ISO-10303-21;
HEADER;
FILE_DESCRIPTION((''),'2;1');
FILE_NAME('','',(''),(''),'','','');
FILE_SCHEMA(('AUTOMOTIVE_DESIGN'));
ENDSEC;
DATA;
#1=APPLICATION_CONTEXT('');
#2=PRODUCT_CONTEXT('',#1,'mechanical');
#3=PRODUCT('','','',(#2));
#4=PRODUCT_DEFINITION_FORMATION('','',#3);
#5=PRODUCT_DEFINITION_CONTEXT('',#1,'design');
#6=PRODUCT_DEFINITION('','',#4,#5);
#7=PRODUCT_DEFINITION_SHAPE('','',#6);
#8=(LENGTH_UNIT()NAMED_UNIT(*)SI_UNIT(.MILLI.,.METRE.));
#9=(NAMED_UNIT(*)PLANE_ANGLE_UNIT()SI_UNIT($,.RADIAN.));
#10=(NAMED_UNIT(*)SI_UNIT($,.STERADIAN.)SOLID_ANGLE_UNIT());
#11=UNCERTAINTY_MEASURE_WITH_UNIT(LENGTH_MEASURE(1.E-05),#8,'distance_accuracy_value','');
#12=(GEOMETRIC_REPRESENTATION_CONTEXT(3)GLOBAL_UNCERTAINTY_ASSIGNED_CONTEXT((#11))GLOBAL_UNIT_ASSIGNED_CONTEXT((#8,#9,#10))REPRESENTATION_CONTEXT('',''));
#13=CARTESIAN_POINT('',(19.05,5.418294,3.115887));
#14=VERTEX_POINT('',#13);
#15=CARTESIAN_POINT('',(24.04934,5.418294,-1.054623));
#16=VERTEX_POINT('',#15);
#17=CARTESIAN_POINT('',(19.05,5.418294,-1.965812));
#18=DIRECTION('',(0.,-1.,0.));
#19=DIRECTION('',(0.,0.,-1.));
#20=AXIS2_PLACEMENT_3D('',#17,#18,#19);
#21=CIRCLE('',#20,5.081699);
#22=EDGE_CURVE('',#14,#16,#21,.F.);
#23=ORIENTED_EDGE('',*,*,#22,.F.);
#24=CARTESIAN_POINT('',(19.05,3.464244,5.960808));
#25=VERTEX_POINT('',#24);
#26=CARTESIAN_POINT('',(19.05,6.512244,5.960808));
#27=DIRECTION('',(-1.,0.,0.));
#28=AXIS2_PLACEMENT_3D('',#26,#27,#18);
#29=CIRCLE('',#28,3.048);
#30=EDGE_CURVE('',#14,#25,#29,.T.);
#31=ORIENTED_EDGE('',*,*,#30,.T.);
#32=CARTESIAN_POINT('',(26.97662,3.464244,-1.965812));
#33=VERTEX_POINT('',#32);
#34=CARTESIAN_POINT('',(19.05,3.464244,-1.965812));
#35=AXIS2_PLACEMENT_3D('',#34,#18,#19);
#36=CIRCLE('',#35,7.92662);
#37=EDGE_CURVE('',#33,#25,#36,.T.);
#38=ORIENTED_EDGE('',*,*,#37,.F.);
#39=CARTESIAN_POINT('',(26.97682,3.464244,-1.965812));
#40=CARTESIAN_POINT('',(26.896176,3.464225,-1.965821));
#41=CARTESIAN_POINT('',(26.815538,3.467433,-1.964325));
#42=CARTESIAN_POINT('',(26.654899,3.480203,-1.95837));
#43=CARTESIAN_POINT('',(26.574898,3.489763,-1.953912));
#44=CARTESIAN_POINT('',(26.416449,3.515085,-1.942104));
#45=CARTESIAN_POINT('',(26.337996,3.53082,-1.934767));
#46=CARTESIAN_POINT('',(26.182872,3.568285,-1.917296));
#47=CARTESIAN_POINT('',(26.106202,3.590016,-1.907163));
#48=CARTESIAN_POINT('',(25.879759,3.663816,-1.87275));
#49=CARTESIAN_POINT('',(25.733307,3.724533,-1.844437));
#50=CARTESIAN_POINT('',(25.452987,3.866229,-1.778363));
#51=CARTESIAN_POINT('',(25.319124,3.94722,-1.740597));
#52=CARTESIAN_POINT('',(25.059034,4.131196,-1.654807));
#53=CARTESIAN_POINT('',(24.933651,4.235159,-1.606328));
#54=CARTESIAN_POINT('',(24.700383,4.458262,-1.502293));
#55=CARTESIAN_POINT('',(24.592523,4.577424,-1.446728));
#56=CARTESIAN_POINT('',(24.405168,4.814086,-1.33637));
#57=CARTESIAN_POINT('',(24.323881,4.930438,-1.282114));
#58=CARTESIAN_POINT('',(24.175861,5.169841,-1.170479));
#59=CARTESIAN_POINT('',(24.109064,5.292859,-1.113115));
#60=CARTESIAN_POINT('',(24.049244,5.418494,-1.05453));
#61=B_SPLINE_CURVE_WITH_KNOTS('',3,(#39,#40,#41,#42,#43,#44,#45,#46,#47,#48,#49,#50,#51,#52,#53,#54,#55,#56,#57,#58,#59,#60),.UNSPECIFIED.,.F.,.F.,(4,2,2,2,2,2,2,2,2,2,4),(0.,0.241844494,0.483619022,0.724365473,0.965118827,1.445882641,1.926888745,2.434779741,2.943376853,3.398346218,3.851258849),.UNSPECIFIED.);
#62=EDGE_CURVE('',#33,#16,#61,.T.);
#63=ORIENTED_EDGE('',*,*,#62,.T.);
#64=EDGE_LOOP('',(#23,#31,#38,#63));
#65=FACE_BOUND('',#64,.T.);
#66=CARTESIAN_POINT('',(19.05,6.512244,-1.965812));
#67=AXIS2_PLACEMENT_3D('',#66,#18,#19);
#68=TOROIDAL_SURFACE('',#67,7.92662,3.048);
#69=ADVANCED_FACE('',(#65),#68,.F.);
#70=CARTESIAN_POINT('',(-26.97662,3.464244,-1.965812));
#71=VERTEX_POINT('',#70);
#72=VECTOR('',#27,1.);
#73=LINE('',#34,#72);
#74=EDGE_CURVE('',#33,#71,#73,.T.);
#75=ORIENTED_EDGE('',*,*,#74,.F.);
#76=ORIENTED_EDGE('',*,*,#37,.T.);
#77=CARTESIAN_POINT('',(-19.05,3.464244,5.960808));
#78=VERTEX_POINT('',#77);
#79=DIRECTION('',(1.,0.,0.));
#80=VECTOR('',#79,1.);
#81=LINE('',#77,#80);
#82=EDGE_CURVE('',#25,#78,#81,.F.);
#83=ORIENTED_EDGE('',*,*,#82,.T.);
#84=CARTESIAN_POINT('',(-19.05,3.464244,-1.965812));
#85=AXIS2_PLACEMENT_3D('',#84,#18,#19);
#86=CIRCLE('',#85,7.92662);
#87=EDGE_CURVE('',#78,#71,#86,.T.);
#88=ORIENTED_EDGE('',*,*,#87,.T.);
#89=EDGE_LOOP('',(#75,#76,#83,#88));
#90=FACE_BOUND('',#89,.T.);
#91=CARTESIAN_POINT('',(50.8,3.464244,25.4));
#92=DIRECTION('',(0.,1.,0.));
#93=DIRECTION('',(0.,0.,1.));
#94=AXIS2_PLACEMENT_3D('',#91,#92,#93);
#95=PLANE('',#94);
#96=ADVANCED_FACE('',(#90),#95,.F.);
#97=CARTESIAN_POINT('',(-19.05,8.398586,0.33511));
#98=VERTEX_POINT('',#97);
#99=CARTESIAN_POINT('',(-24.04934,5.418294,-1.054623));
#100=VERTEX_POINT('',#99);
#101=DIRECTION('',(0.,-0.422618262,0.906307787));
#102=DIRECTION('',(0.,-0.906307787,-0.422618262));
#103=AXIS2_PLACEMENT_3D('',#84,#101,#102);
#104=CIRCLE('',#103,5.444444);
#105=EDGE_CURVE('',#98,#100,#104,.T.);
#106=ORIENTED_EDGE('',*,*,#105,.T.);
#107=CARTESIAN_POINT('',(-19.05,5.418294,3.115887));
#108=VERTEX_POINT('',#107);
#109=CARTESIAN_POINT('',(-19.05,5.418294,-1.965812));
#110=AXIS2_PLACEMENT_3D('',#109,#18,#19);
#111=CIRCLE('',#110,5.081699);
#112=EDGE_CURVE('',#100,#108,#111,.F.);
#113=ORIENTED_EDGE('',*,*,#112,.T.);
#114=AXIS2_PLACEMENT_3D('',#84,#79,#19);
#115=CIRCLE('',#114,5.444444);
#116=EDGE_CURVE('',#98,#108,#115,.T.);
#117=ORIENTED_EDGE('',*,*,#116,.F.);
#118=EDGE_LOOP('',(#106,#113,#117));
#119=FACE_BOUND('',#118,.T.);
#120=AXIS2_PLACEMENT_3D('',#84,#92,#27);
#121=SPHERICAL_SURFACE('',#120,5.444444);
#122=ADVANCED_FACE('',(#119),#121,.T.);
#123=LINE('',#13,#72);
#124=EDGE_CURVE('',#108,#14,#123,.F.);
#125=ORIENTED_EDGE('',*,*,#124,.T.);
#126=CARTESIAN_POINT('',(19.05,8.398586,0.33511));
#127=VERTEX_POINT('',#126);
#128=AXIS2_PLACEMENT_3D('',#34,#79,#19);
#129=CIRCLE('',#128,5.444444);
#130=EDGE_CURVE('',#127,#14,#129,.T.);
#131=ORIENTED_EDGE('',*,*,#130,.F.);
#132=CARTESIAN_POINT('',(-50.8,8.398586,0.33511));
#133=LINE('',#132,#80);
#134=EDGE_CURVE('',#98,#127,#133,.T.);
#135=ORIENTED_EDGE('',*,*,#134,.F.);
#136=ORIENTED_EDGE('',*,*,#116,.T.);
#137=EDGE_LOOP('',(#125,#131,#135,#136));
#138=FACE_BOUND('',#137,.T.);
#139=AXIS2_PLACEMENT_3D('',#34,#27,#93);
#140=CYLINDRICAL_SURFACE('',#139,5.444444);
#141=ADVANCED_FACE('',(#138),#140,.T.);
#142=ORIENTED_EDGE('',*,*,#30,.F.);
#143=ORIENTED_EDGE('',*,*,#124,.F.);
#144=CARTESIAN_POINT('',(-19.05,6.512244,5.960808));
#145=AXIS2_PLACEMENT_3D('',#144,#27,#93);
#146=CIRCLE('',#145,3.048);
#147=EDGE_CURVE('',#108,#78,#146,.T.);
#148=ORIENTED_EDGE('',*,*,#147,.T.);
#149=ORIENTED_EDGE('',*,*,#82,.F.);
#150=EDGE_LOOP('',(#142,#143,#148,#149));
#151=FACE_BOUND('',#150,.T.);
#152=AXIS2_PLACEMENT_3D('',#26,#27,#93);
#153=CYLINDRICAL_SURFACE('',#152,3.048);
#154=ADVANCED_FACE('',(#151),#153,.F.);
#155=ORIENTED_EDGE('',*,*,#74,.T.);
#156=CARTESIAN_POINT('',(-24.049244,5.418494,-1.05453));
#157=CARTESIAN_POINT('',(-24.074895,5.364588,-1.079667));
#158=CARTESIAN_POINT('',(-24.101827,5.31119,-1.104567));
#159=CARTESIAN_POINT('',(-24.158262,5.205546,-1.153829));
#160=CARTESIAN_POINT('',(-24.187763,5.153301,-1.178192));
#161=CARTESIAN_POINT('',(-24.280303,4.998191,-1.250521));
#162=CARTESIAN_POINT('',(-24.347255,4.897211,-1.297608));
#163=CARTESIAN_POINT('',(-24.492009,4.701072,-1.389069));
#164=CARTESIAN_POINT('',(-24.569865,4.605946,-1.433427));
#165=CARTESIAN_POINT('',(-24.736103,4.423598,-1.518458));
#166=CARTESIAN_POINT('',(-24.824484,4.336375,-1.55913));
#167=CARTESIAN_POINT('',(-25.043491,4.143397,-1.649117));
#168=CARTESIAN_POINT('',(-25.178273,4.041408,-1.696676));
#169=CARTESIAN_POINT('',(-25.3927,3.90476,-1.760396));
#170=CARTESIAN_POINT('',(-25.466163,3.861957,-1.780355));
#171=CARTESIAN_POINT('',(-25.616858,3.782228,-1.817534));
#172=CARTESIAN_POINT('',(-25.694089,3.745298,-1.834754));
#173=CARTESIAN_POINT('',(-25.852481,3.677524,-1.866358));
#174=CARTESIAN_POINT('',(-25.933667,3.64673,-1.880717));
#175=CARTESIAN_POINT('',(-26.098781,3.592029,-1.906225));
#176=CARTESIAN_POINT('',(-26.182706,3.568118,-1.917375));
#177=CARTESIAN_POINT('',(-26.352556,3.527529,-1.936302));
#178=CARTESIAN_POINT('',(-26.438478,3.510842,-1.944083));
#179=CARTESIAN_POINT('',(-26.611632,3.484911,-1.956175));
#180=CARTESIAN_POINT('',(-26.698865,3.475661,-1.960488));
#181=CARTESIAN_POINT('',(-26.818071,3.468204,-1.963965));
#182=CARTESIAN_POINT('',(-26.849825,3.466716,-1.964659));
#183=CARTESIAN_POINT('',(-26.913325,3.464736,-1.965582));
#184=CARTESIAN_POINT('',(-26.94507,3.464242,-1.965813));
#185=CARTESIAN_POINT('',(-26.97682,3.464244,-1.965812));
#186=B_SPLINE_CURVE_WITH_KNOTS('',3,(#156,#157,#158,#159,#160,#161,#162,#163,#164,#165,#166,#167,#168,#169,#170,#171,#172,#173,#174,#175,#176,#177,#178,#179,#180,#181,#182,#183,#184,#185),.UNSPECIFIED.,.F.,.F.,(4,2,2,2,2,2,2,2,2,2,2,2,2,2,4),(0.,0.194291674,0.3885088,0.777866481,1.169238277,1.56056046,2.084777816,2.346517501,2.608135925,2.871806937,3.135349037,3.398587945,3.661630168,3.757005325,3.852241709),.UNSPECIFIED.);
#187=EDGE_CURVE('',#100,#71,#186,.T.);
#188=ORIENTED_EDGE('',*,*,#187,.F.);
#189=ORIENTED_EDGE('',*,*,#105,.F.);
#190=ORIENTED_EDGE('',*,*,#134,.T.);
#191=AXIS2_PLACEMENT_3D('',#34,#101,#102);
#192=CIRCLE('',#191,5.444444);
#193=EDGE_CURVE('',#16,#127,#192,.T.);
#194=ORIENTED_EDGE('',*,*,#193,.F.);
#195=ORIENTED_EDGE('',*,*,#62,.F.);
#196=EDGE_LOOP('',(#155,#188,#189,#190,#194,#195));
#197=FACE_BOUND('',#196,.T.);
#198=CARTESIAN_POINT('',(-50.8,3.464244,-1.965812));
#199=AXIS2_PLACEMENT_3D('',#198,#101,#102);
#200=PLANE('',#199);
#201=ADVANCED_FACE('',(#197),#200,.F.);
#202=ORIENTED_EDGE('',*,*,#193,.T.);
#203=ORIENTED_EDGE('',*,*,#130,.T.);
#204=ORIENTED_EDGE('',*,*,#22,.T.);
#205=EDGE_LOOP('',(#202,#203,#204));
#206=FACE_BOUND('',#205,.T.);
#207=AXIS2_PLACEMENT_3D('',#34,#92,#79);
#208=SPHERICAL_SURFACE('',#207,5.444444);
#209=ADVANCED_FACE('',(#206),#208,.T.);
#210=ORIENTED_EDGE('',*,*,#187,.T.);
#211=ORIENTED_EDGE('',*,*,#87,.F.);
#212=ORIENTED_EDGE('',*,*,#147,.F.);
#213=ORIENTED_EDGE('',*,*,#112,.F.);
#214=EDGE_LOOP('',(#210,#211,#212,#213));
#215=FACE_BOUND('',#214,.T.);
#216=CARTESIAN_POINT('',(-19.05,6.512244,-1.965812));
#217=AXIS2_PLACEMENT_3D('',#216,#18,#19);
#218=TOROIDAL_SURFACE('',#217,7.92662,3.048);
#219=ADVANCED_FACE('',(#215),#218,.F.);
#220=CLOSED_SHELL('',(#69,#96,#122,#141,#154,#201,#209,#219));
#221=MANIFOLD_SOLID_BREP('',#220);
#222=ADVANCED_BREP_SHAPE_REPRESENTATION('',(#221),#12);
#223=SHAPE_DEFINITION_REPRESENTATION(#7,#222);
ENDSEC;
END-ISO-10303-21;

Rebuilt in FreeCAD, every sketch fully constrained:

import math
import FreeCAD as App
import Part
import Sketcher

V = App.Vector
Q = App.Units.Quantity


def edges_at(feature, points):
    """Names of the edges that pass closest to the given points."""
    edges = feature.Shape.Edges
    near = lambda p: min(range(len(edges)), key=lambda i: edges[i].distToShape(Part.Vertex(*p))[0])
    return sorted({f"Edge{near(p) + 1}" for p in points})


def add_polygon(sketch, points):
    """Adds a closed chain of lines whose ends are joined by coincident constraints."""
    first, n = sketch.GeometryCount, len(points)
    for a, b in zip(points, points[1:] + points[:1]):
        sketch.addGeometry(Part.LineSegment(App.Vector(*a, 0), App.Vector(*b, 0)), False)
    for i in range(n):
        sketch.addConstraint(Sketcher.Constraint("Coincident", first + i, 2, first + (i + 1) % n, 1))

doc = App.newDocument("Part")
body = doc.addObject("PartDesign::Body", "Body")

sketch1 = doc.addObject("Sketcher::SketchObject", "Sketch")
body.addObject(sketch1)
sketch1.AttachmentSupport = (doc.YZ_Plane, [""])
sketch1.MapMode = "FlatFace"
add_polygon(sketch1, [(3.464244, 25.4), (0, 25.4), (0, -25.4), (3.464244, -25.4)])
sketch1.addConstraint(Sketcher.Constraint("Horizontal", 0))
sketch1.addConstraint(Sketcher.Constraint("Vertical", 1))
sketch1.addConstraint(Sketcher.Constraint("Horizontal", 2))
sketch1.addConstraint(Sketcher.Constraint("Vertical", 3))
sketch1.addConstraint(Sketcher.Constraint("Symmetric", 0, 2, 1, 2, -1, 1))
sketch1.addConstraint(Sketcher.Constraint("DistanceY", 1, 2, 1, 1, Q("2 in")))
sketch1.addConstraint(Sketcher.Constraint("DistanceX", 0, 2, 0, 1, Q("3.464244 mm")))
pad1 = doc.addObject("PartDesign::Pad", "Pad")
body.addObject(pad1)
pad1.Profile = sketch1
pad1.Length = Q("4 in")
pad1.Midplane = True

sketch2 = doc.addObject("Sketcher::SketchObject", "Sketch001")
body.addObject(sketch2)
sketch2.AttachmentSupport = (doc.YZ_Plane, [""])
sketch2.MapMode = "FlatFace"
sketch2.addGeometry(Part.LineSegment(V(3.464244, -1.965812, 0), V(8.908688, -1.965812, 0)), False)
sketch2.addGeometry(Part.ArcOfCircle(Part.Circle(V(3.464244, -1.965812, 0), V(0, 0, 1), 5.444444), math.radians(0), math.radians(90)), False)
sketch2.addGeometry(Part.LineSegment(V(3.464244, 3.478632, 0), V(3.464244, -1.965812, 0)), False)
sketch2.addConstraint(Sketcher.Constraint("Coincident", 0, 2, 1, 1))
sketch2.addConstraint(Sketcher.Constraint("Coincident", 1, 2, 2, 1))
sketch2.addConstraint(Sketcher.Constraint("Coincident", 2, 2, 0, 1))
sketch2.addConstraint(Sketcher.Constraint("Horizontal", 0))
sketch2.addConstraint(Sketcher.Constraint("Vertical", 2))
sketch2.addConstraint(Sketcher.Constraint("Coincident", 2, 2, 1, 3))
sketch2.addConstraint(Sketcher.Constraint("Radius", 1, Q("5.444444 mm")))
sketch2.addConstraint(Sketcher.Constraint("DistanceY", 1, 3, -1, 1, Q("1.965812 mm")))
sketch2.addConstraint(Sketcher.Constraint("DistanceX", -1, 1, 0, 2, Q("8.908688 mm")))
pad2 = doc.addObject("PartDesign::Pad", "Pad001")
body.addObject(pad2)
pad2.Profile = sketch2
pad2.Length = Q("1.5 in")
pad2.Midplane = True

sketch3 = doc.addObject("Sketcher::SketchObject", "Sketch002")
body.addObject(sketch3)
sketch3.AttachmentSupport = (doc.YZ_Plane, [""])
sketch3.MapMode = "FlatFace"
sketch3.AttachmentOffset = App.Placement(V(0, 0, -0.75 * 25.4), App.Rotation())
sketch3.addGeometry(Part.LineSegment(V(3.464244, -1.965812, 0), V(3.464244, 3.478632, 0)), False)
sketch3.addGeometry(Part.ArcOfCircle(Part.Circle(V(3.464244, -1.965812, 0), V(0, 0, 1), 5.444444), math.radians(0), math.radians(90)), False)
sketch3.addGeometry(Part.LineSegment(V(8.908688, -1.965812, 0), V(3.464244, -1.965812, 0)), False)
sketch3.addGeometry(Part.LineSegment(V(8.908688, -1.965812, 0), V(3.464244, -1.965812, 0)), True)
sketch3.addConstraint(Sketcher.Constraint("Coincident", 0, 2, 1, 2))
sketch3.addConstraint(Sketcher.Constraint("Coincident", 1, 1, 2, 1))
sketch3.addConstraint(Sketcher.Constraint("Coincident", 2, 2, 0, 1))
sketch3.addConstraint(Sketcher.Constraint("Vertical", 0))
sketch3.addConstraint(Sketcher.Constraint("Horizontal", 2))
sketch3.addConstraint(Sketcher.Constraint("Horizontal", 3))
sketch3.addConstraint(Sketcher.Constraint("Coincident", 2, 2, 1, 3))
sketch3.addConstraint(Sketcher.Constraint("Coincident", 3, 1, 1, 1))
sketch3.addConstraint(Sketcher.Constraint("Vertical", 0, 2, 3, 2))
sketch3.addConstraint(Sketcher.Constraint("Radius", 1, Q("5.444444 mm")))
sketch3.addConstraint(Sketcher.Constraint("DistanceY", 1, 3, -1, 1, Q("1.965812 mm")))
sketch3.addConstraint(Sketcher.Constraint("DistanceX", -1, 1, 1, 1, Q("8.908688 mm")))
revolution = doc.addObject("PartDesign::Revolution", "Revolution")
body.addObject(revolution)
revolution.Profile = sketch3
revolution.ReferenceAxis = (sketch3, ["Axis0"])
revolution.Angle = 90
doc.recompute()

mirrored = doc.addObject("PartDesign::Mirrored", "Mirrored")
body.addObject(mirrored)
mirrored.Originals = [revolution]
mirrored.MirrorPlane = (doc.YZ_Plane, [""])
body.Tip = mirrored
doc.recompute()

fillet = doc.addObject("PartDesign::Fillet", "Fillet")
body.addObject(fillet)
fillet.Base = (mirrored, edges_at(mirrored, [(0, 3.464, 3.479), (-22.9, 3.464, 1.884), (22.9, 3.464, 1.884)]))
fillet.Radius = Q("0.12 in")

sketch4 = doc.addObject("Sketcher::SketchObject", "Sketch003")
body.addObject(sketch4)
sketch4.AttachmentSupport = (doc.YZ_Plane, [""])
sketch4.MapMode = "FlatFace"
sketch4.addGeometry(Part.LineSegment(V(8.398586, 0.33511, 0), V(3.464244, -1.965812, 0)), False)
sketch4.addGeometry(Part.LineSegment(V(3.464244, -1.965812, 0), V(8.908688, -1.965812, 0)), False)
sketch4.addGeometry(Part.ArcOfCircle(Part.Circle(V(3.464244, -1.965812, 0), V(0, 0, 1), 5.444444), math.radians(0), math.radians(25)), False)
sketch4.addConstraint(Sketcher.Constraint("Coincident", 0, 2, 1, 1))
sketch4.addConstraint(Sketcher.Constraint("Coincident", 1, 2, 2, 1))
sketch4.addConstraint(Sketcher.Constraint("Coincident", 2, 2, 0, 1))
sketch4.addConstraint(Sketcher.Constraint("Horizontal", 1))
sketch4.addConstraint(Sketcher.Constraint("Coincident", 0, 2, 2, 3))
sketch4.addConstraint(Sketcher.Constraint("Angle", 0, Q("-155 deg")))
sketch4.addConstraint(Sketcher.Constraint("Radius", 2, Q("5.444444 mm")))
sketch4.addConstraint(Sketcher.Constraint("DistanceY", 2, 3, -1, 1, Q("1.965812 mm")))
sketch4.addConstraint(Sketcher.Constraint("DistanceX", -1, 1, 1, 2, Q("8.908688 mm")))
pocket1 = doc.addObject("PartDesign::Pocket", "Pocket")
body.addObject(pocket1)
pocket1.Profile = sketch4
pocket1.Type = "ThroughAll"
pocket1.Midplane = True

sketch5 = doc.addObject("Sketcher::SketchObject", "Sketch004")
body.addObject(sketch5)
sketch5.AttachmentSupport = (doc.YZ_Plane, [""])
sketch5.MapMode = "FlatFace"
sketch5.AttachmentOffset = App.Placement(V(0, 0, -2 * 25.4), App.Rotation())
add_polygon(sketch5, [(3.464244, -25.4), (0, -25.4), (0, 25.4), (3.464244, 25.4)])
sketch5.addConstraint(Sketcher.Constraint("Horizontal", 0))
sketch5.addConstraint(Sketcher.Constraint("Vertical", 1))
sketch5.addConstraint(Sketcher.Constraint("Horizontal", 2))
sketch5.addConstraint(Sketcher.Constraint("Vertical", 3))
sketch5.addConstraint(Sketcher.Constraint("Symmetric", 0, 2, 1, 2, -1, 1))
sketch5.addConstraint(Sketcher.Constraint("DistanceY", 1, 1, 1, 2, Q("2 in")))
sketch5.addConstraint(Sketcher.Constraint("DistanceX", 0, 2, 0, 1, Q("3.464244 mm")))
pocket2 = doc.addObject("PartDesign::Pocket", "Pocket001")
body.addObject(pocket2)
pocket2.Profile = sketch5
pocket2.Type = "ThroughAll"
pocket2.Reversed = True

doc.recompute()
